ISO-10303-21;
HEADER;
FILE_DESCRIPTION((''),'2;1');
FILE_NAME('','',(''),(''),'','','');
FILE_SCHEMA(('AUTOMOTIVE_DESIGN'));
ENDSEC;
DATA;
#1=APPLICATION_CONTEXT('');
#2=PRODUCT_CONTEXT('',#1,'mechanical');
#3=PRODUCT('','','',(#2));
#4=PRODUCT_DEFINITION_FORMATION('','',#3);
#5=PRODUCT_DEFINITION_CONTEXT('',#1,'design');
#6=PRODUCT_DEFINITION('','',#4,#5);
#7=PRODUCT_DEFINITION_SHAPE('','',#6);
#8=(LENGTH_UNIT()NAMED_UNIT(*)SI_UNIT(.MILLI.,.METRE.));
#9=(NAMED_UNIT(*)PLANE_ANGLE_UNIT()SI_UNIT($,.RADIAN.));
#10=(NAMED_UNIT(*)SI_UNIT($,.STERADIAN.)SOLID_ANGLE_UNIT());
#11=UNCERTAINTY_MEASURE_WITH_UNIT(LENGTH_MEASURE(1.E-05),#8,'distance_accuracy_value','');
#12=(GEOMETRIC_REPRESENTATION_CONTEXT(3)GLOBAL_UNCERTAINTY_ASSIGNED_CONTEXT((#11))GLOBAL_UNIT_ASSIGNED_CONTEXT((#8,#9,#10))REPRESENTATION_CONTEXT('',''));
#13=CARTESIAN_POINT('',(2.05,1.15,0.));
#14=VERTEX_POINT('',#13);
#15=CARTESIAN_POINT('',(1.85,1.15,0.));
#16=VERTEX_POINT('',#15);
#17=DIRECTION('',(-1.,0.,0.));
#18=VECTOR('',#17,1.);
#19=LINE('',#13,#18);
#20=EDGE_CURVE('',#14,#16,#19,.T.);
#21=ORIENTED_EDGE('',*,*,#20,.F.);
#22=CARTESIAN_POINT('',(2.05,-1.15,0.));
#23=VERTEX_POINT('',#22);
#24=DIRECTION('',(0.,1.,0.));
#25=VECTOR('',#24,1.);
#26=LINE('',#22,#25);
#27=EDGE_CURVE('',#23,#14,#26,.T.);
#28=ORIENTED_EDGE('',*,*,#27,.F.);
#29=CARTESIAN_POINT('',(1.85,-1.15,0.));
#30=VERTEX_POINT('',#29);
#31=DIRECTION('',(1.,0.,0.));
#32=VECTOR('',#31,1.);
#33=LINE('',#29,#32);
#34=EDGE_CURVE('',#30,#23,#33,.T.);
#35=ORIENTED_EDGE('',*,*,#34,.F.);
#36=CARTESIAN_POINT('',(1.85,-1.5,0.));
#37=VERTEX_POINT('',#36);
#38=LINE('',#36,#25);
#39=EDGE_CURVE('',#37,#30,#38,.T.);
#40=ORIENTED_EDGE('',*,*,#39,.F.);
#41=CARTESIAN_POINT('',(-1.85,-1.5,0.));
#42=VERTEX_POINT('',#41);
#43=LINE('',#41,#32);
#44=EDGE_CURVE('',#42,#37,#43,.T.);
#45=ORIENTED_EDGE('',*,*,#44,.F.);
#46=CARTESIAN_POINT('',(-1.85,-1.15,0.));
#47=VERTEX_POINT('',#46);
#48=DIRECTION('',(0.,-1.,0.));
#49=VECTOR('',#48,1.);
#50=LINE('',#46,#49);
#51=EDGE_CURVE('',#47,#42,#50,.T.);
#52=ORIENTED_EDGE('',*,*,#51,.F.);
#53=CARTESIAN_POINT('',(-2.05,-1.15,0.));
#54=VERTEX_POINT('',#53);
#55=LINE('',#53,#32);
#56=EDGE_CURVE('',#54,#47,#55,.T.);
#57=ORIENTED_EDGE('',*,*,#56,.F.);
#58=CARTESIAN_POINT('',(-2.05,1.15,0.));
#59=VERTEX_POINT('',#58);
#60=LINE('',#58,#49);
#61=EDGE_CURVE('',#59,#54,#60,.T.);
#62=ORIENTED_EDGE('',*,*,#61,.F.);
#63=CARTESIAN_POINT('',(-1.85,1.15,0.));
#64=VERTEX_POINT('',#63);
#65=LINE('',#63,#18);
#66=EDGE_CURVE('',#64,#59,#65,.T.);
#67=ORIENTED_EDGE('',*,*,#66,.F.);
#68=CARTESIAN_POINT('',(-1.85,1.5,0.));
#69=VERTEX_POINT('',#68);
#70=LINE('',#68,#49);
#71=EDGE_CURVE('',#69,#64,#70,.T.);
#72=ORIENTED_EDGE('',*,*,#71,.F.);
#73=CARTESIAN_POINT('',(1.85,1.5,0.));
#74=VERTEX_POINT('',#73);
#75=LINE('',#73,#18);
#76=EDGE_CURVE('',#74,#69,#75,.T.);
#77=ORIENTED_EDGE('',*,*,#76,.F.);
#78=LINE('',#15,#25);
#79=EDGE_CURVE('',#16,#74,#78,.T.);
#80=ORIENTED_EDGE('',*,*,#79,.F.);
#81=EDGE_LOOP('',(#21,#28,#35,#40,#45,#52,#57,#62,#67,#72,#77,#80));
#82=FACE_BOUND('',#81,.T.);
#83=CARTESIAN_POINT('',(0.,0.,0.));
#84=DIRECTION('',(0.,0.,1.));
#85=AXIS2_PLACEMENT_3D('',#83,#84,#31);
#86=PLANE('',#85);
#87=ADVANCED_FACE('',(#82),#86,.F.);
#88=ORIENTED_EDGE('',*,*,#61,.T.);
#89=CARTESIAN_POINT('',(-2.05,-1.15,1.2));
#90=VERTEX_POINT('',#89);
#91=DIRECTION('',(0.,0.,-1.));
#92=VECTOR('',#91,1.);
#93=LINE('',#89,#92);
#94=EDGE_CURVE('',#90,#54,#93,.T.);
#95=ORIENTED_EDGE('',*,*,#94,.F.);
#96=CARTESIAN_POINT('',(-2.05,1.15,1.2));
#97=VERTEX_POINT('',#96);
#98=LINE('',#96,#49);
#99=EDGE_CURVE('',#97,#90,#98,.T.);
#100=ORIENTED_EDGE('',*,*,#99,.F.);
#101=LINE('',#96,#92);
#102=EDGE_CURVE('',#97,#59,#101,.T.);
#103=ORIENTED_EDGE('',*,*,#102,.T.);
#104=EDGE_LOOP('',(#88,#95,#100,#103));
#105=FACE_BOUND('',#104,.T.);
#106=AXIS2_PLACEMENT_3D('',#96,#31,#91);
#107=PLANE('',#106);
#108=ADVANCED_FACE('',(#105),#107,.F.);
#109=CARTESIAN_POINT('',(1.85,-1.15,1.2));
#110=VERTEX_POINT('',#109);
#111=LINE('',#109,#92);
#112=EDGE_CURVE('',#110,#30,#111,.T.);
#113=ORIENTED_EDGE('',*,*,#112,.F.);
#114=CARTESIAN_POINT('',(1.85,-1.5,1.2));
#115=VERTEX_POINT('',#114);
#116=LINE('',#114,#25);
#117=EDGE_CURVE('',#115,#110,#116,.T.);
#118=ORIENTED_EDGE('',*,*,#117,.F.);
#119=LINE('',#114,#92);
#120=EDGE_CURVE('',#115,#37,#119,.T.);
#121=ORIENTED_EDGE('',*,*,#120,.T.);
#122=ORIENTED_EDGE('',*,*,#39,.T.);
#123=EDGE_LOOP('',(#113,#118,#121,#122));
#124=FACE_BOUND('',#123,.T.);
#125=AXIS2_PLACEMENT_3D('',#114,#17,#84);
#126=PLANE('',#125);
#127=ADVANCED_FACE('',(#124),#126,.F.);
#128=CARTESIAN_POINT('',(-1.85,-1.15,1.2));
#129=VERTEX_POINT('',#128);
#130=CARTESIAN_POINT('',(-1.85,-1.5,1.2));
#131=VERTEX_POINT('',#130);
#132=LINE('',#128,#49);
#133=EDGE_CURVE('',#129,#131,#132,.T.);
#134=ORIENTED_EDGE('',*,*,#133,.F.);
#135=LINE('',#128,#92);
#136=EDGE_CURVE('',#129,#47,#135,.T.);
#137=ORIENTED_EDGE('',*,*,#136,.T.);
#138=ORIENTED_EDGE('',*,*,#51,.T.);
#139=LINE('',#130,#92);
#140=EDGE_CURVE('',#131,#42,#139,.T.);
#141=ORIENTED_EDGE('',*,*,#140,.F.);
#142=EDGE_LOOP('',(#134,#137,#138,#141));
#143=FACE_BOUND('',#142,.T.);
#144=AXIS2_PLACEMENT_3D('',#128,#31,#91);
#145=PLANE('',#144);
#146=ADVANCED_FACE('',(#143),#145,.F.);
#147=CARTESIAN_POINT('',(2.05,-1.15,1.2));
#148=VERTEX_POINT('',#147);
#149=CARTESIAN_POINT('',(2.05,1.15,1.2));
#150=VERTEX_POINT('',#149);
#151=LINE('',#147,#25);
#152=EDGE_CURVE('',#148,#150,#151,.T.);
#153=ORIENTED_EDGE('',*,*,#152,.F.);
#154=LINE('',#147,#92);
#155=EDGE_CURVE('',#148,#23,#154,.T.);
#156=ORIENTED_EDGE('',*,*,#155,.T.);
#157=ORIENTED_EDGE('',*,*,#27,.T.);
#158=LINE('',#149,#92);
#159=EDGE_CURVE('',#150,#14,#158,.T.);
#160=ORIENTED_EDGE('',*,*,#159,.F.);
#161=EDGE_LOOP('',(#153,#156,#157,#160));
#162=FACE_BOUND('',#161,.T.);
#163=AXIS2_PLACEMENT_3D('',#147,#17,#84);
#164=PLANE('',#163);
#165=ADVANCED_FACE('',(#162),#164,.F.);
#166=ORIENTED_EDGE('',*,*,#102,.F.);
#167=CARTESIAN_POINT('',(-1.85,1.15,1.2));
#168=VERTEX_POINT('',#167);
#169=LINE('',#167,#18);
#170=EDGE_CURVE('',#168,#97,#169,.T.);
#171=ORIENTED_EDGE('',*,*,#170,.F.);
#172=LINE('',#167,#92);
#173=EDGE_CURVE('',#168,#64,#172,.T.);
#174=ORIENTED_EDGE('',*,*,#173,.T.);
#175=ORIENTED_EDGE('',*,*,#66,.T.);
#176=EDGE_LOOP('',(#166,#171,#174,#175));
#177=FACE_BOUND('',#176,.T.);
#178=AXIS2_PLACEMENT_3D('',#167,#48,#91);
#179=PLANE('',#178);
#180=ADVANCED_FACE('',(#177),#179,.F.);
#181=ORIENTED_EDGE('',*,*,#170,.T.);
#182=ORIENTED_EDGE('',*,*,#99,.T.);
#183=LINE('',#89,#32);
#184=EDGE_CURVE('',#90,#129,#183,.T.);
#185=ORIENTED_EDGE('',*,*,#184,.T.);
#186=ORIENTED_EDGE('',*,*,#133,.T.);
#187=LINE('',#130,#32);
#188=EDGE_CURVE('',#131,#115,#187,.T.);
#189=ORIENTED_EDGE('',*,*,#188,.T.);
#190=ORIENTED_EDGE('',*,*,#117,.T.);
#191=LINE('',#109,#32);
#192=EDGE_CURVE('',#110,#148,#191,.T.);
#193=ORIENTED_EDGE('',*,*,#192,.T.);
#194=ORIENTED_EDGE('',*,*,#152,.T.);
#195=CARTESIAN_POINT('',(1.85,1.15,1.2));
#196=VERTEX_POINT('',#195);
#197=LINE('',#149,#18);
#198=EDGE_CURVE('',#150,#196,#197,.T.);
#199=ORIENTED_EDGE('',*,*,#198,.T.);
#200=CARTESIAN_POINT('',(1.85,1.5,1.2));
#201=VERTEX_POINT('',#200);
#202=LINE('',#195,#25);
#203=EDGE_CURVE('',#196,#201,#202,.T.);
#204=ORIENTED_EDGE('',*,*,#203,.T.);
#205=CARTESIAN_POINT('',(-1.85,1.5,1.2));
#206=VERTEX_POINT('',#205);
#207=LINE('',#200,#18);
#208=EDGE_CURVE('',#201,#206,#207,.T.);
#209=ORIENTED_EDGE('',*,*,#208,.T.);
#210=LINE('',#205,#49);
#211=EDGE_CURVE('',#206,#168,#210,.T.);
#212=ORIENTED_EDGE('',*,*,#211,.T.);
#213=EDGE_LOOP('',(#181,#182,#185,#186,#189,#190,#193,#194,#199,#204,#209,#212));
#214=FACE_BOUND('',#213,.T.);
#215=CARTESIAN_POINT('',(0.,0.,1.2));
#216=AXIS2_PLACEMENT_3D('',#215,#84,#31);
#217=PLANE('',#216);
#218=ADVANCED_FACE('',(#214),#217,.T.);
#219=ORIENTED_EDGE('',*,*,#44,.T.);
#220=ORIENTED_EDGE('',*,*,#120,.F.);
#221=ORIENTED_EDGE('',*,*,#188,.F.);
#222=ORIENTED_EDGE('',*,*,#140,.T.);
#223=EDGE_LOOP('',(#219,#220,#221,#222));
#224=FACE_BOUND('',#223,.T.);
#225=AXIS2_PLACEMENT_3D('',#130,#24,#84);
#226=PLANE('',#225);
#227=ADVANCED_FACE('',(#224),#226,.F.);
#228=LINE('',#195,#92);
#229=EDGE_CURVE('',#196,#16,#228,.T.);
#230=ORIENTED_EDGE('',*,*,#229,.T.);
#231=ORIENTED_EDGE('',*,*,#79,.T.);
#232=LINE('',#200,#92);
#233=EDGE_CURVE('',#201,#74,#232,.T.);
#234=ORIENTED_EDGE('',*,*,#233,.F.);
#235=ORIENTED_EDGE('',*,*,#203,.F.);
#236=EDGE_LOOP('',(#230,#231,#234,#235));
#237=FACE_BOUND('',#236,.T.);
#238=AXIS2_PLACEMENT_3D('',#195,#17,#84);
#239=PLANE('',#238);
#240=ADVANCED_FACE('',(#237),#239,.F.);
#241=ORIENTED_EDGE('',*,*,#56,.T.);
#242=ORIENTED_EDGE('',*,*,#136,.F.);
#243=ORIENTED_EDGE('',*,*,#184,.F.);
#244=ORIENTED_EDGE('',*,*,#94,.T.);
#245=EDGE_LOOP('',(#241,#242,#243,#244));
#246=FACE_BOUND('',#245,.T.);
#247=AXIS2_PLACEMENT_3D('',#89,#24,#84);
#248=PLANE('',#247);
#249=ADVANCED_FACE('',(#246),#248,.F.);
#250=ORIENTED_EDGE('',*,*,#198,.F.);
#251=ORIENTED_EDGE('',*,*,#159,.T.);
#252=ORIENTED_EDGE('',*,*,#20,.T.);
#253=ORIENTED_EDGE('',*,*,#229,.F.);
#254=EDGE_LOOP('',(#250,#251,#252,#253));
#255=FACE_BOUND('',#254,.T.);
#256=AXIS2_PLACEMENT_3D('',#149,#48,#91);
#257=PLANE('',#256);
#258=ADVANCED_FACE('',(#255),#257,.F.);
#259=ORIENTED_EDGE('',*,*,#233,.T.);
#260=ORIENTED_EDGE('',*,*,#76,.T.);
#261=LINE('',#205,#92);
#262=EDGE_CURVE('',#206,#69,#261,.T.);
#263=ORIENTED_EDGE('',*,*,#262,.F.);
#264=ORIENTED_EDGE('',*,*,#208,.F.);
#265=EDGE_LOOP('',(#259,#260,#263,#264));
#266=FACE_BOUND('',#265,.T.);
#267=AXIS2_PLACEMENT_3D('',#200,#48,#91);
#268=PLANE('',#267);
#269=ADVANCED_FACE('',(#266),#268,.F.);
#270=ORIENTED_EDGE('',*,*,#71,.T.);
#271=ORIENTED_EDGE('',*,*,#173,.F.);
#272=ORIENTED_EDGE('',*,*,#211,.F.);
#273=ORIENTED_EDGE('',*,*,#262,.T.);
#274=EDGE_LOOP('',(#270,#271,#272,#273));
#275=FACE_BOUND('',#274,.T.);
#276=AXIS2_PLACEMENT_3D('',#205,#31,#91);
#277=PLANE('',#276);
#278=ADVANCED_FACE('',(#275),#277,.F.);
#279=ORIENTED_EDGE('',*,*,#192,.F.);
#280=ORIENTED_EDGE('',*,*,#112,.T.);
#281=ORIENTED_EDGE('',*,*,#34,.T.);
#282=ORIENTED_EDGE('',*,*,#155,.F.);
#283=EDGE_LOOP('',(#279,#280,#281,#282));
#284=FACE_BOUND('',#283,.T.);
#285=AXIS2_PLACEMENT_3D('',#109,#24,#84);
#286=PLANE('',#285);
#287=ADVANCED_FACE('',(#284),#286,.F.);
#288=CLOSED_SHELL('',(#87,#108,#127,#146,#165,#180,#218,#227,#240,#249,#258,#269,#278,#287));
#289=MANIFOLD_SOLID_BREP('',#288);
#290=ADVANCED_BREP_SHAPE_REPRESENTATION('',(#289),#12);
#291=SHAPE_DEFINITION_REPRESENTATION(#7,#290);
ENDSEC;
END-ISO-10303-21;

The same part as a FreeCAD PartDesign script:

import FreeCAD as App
import Part
import Sketcher
Q = App.Units.Quantity

doc = App.newDocument("Part")
body = doc.addObject("PartDesign::Body", "Body")

sketch1 = body.newObject("Sketcher::SketchObject", "Sketch")
sketch1.AttachmentSupport = (doc.getObject("XY_Plane"), [""])
sketch1.MapMode = "FlatFace"
sketch1.addGeometry([
    Part.LineSegment(App.Vector(1.85, -1.5, 0), App.Vector(1.85, -1.15, 0)),
    Part.LineSegment(App.Vector(1.85, -1.15, 0), App.Vector(2.05, -1.15, 0)),
    Part.LineSegment(App.Vector(2.05, -1.15, 0), App.Vector(2.05, 1.15, 0)),
    Part.LineSegment(App.Vector(2.05, 1.15, 0), App.Vector(1.85, 1.15, 0)),
    Part.LineSegment(App.Vector(1.85, 1.15, 0), App.Vector(1.85, 1.5, 0)),
    Part.LineSegment(App.Vector(1.85, 1.5, 0), App.Vector(-1.85, 1.5, 0)),
    Part.LineSegment(App.Vector(-1.85, 1.5, 0), App.Vector(-1.85, 1.15, 0)),
    Part.LineSegment(App.Vector(-1.85, 1.15, 0), App.Vector(-2.05, 1.15, 0)),
    Part.LineSegment(App.Vector(-2.05, 1.15, 0), App.Vector(-2.05, -1.15, 0)),
    Part.LineSegment(App.Vector(-2.05, -1.15, 0), App.Vector(-1.85, -1.15, 0)),
    Part.LineSegment(App.Vector(-1.85, -1.15, 0), App.Vector(-1.85, -1.5, 0)),
    Part.LineSegment(App.Vector(-1.85, -1.5, 0), App.Vector(1.85, -1.5, 0)),
], False)
sketch1.addConstraint([
    Sketcher.Constraint("Coincident", 0, 2, 1, 1),
    Sketcher.Constraint("Coincident", 1, 2, 2, 1),
    Sketcher.Constraint("Coincident", 2, 2, 3, 1),
    Sketcher.Constraint("Coincident", 3, 2, 4, 1),
    Sketcher.Constraint("Coincident", 4, 2, 5, 1),
    Sketcher.Constraint("Coincident", 5, 2, 6, 1),
    Sketcher.Constraint("Coincident", 6, 2, 7, 1),
    Sketcher.Constraint("Coincident", 7, 2, 8, 1),
    Sketcher.Constraint("Coincident", 8, 2, 9, 1),
    Sketcher.Constraint("Coincident", 9, 2, 10, 1),
    Sketcher.Constraint("Coincident", 10, 2, 11, 1),
    Sketcher.Constraint("Coincident", 11, 2, 0, 1),
    Sketcher.Constraint("Vertical", 0),
    Sketcher.Constraint("Horizontal", 1),
    Sketcher.Constraint("Vertical", 2),
    Sketcher.Constraint("Horizontal", 3),
    Sketcher.Constraint("Vertical", 4),
    Sketcher.Constraint("Horizontal", 5),
    Sketcher.Constraint("Vertical", 6),
    Sketcher.Constraint("Horizontal", 7),
    Sketcher.Constraint("Vertical", 8),
    Sketcher.Constraint("Horizontal", 9),
    Sketcher.Constraint("Vertical", 10),
    Sketcher.Constraint("Horizontal", 11),
    Sketcher.Constraint("Symmetric", 0, 2, 6, 2, -1, 1),
    Sketcher.Constraint("Symmetric", 2, 2, 8, 2, -1, 1),
    Sketcher.Constraint("Symmetric", 4, 2, 10, 2, -1, 1),
    Sketcher.Constraint("Symmetric", 3, 2, 6, 2, -2),
    Sketcher.Constraint("DistanceX", 1, 1, 1, 2, Q("0.2 mm")),
    Sketcher.Constraint("DistanceX", 5, 2, 5, 1, Q("3.7 mm")),
    Sketcher.Constraint("DistanceY", 2, 1, 2, 2, Q("2.3 mm")),
    Sketcher.Constraint("DistanceY", 10, 2, 5, 2, Q("3 mm")),
])
pad1 = body.newObject("PartDesign::Pad", "Pad")
pad1.Profile = sketch1
pad1.Length = 1.2

doc.recompute()
